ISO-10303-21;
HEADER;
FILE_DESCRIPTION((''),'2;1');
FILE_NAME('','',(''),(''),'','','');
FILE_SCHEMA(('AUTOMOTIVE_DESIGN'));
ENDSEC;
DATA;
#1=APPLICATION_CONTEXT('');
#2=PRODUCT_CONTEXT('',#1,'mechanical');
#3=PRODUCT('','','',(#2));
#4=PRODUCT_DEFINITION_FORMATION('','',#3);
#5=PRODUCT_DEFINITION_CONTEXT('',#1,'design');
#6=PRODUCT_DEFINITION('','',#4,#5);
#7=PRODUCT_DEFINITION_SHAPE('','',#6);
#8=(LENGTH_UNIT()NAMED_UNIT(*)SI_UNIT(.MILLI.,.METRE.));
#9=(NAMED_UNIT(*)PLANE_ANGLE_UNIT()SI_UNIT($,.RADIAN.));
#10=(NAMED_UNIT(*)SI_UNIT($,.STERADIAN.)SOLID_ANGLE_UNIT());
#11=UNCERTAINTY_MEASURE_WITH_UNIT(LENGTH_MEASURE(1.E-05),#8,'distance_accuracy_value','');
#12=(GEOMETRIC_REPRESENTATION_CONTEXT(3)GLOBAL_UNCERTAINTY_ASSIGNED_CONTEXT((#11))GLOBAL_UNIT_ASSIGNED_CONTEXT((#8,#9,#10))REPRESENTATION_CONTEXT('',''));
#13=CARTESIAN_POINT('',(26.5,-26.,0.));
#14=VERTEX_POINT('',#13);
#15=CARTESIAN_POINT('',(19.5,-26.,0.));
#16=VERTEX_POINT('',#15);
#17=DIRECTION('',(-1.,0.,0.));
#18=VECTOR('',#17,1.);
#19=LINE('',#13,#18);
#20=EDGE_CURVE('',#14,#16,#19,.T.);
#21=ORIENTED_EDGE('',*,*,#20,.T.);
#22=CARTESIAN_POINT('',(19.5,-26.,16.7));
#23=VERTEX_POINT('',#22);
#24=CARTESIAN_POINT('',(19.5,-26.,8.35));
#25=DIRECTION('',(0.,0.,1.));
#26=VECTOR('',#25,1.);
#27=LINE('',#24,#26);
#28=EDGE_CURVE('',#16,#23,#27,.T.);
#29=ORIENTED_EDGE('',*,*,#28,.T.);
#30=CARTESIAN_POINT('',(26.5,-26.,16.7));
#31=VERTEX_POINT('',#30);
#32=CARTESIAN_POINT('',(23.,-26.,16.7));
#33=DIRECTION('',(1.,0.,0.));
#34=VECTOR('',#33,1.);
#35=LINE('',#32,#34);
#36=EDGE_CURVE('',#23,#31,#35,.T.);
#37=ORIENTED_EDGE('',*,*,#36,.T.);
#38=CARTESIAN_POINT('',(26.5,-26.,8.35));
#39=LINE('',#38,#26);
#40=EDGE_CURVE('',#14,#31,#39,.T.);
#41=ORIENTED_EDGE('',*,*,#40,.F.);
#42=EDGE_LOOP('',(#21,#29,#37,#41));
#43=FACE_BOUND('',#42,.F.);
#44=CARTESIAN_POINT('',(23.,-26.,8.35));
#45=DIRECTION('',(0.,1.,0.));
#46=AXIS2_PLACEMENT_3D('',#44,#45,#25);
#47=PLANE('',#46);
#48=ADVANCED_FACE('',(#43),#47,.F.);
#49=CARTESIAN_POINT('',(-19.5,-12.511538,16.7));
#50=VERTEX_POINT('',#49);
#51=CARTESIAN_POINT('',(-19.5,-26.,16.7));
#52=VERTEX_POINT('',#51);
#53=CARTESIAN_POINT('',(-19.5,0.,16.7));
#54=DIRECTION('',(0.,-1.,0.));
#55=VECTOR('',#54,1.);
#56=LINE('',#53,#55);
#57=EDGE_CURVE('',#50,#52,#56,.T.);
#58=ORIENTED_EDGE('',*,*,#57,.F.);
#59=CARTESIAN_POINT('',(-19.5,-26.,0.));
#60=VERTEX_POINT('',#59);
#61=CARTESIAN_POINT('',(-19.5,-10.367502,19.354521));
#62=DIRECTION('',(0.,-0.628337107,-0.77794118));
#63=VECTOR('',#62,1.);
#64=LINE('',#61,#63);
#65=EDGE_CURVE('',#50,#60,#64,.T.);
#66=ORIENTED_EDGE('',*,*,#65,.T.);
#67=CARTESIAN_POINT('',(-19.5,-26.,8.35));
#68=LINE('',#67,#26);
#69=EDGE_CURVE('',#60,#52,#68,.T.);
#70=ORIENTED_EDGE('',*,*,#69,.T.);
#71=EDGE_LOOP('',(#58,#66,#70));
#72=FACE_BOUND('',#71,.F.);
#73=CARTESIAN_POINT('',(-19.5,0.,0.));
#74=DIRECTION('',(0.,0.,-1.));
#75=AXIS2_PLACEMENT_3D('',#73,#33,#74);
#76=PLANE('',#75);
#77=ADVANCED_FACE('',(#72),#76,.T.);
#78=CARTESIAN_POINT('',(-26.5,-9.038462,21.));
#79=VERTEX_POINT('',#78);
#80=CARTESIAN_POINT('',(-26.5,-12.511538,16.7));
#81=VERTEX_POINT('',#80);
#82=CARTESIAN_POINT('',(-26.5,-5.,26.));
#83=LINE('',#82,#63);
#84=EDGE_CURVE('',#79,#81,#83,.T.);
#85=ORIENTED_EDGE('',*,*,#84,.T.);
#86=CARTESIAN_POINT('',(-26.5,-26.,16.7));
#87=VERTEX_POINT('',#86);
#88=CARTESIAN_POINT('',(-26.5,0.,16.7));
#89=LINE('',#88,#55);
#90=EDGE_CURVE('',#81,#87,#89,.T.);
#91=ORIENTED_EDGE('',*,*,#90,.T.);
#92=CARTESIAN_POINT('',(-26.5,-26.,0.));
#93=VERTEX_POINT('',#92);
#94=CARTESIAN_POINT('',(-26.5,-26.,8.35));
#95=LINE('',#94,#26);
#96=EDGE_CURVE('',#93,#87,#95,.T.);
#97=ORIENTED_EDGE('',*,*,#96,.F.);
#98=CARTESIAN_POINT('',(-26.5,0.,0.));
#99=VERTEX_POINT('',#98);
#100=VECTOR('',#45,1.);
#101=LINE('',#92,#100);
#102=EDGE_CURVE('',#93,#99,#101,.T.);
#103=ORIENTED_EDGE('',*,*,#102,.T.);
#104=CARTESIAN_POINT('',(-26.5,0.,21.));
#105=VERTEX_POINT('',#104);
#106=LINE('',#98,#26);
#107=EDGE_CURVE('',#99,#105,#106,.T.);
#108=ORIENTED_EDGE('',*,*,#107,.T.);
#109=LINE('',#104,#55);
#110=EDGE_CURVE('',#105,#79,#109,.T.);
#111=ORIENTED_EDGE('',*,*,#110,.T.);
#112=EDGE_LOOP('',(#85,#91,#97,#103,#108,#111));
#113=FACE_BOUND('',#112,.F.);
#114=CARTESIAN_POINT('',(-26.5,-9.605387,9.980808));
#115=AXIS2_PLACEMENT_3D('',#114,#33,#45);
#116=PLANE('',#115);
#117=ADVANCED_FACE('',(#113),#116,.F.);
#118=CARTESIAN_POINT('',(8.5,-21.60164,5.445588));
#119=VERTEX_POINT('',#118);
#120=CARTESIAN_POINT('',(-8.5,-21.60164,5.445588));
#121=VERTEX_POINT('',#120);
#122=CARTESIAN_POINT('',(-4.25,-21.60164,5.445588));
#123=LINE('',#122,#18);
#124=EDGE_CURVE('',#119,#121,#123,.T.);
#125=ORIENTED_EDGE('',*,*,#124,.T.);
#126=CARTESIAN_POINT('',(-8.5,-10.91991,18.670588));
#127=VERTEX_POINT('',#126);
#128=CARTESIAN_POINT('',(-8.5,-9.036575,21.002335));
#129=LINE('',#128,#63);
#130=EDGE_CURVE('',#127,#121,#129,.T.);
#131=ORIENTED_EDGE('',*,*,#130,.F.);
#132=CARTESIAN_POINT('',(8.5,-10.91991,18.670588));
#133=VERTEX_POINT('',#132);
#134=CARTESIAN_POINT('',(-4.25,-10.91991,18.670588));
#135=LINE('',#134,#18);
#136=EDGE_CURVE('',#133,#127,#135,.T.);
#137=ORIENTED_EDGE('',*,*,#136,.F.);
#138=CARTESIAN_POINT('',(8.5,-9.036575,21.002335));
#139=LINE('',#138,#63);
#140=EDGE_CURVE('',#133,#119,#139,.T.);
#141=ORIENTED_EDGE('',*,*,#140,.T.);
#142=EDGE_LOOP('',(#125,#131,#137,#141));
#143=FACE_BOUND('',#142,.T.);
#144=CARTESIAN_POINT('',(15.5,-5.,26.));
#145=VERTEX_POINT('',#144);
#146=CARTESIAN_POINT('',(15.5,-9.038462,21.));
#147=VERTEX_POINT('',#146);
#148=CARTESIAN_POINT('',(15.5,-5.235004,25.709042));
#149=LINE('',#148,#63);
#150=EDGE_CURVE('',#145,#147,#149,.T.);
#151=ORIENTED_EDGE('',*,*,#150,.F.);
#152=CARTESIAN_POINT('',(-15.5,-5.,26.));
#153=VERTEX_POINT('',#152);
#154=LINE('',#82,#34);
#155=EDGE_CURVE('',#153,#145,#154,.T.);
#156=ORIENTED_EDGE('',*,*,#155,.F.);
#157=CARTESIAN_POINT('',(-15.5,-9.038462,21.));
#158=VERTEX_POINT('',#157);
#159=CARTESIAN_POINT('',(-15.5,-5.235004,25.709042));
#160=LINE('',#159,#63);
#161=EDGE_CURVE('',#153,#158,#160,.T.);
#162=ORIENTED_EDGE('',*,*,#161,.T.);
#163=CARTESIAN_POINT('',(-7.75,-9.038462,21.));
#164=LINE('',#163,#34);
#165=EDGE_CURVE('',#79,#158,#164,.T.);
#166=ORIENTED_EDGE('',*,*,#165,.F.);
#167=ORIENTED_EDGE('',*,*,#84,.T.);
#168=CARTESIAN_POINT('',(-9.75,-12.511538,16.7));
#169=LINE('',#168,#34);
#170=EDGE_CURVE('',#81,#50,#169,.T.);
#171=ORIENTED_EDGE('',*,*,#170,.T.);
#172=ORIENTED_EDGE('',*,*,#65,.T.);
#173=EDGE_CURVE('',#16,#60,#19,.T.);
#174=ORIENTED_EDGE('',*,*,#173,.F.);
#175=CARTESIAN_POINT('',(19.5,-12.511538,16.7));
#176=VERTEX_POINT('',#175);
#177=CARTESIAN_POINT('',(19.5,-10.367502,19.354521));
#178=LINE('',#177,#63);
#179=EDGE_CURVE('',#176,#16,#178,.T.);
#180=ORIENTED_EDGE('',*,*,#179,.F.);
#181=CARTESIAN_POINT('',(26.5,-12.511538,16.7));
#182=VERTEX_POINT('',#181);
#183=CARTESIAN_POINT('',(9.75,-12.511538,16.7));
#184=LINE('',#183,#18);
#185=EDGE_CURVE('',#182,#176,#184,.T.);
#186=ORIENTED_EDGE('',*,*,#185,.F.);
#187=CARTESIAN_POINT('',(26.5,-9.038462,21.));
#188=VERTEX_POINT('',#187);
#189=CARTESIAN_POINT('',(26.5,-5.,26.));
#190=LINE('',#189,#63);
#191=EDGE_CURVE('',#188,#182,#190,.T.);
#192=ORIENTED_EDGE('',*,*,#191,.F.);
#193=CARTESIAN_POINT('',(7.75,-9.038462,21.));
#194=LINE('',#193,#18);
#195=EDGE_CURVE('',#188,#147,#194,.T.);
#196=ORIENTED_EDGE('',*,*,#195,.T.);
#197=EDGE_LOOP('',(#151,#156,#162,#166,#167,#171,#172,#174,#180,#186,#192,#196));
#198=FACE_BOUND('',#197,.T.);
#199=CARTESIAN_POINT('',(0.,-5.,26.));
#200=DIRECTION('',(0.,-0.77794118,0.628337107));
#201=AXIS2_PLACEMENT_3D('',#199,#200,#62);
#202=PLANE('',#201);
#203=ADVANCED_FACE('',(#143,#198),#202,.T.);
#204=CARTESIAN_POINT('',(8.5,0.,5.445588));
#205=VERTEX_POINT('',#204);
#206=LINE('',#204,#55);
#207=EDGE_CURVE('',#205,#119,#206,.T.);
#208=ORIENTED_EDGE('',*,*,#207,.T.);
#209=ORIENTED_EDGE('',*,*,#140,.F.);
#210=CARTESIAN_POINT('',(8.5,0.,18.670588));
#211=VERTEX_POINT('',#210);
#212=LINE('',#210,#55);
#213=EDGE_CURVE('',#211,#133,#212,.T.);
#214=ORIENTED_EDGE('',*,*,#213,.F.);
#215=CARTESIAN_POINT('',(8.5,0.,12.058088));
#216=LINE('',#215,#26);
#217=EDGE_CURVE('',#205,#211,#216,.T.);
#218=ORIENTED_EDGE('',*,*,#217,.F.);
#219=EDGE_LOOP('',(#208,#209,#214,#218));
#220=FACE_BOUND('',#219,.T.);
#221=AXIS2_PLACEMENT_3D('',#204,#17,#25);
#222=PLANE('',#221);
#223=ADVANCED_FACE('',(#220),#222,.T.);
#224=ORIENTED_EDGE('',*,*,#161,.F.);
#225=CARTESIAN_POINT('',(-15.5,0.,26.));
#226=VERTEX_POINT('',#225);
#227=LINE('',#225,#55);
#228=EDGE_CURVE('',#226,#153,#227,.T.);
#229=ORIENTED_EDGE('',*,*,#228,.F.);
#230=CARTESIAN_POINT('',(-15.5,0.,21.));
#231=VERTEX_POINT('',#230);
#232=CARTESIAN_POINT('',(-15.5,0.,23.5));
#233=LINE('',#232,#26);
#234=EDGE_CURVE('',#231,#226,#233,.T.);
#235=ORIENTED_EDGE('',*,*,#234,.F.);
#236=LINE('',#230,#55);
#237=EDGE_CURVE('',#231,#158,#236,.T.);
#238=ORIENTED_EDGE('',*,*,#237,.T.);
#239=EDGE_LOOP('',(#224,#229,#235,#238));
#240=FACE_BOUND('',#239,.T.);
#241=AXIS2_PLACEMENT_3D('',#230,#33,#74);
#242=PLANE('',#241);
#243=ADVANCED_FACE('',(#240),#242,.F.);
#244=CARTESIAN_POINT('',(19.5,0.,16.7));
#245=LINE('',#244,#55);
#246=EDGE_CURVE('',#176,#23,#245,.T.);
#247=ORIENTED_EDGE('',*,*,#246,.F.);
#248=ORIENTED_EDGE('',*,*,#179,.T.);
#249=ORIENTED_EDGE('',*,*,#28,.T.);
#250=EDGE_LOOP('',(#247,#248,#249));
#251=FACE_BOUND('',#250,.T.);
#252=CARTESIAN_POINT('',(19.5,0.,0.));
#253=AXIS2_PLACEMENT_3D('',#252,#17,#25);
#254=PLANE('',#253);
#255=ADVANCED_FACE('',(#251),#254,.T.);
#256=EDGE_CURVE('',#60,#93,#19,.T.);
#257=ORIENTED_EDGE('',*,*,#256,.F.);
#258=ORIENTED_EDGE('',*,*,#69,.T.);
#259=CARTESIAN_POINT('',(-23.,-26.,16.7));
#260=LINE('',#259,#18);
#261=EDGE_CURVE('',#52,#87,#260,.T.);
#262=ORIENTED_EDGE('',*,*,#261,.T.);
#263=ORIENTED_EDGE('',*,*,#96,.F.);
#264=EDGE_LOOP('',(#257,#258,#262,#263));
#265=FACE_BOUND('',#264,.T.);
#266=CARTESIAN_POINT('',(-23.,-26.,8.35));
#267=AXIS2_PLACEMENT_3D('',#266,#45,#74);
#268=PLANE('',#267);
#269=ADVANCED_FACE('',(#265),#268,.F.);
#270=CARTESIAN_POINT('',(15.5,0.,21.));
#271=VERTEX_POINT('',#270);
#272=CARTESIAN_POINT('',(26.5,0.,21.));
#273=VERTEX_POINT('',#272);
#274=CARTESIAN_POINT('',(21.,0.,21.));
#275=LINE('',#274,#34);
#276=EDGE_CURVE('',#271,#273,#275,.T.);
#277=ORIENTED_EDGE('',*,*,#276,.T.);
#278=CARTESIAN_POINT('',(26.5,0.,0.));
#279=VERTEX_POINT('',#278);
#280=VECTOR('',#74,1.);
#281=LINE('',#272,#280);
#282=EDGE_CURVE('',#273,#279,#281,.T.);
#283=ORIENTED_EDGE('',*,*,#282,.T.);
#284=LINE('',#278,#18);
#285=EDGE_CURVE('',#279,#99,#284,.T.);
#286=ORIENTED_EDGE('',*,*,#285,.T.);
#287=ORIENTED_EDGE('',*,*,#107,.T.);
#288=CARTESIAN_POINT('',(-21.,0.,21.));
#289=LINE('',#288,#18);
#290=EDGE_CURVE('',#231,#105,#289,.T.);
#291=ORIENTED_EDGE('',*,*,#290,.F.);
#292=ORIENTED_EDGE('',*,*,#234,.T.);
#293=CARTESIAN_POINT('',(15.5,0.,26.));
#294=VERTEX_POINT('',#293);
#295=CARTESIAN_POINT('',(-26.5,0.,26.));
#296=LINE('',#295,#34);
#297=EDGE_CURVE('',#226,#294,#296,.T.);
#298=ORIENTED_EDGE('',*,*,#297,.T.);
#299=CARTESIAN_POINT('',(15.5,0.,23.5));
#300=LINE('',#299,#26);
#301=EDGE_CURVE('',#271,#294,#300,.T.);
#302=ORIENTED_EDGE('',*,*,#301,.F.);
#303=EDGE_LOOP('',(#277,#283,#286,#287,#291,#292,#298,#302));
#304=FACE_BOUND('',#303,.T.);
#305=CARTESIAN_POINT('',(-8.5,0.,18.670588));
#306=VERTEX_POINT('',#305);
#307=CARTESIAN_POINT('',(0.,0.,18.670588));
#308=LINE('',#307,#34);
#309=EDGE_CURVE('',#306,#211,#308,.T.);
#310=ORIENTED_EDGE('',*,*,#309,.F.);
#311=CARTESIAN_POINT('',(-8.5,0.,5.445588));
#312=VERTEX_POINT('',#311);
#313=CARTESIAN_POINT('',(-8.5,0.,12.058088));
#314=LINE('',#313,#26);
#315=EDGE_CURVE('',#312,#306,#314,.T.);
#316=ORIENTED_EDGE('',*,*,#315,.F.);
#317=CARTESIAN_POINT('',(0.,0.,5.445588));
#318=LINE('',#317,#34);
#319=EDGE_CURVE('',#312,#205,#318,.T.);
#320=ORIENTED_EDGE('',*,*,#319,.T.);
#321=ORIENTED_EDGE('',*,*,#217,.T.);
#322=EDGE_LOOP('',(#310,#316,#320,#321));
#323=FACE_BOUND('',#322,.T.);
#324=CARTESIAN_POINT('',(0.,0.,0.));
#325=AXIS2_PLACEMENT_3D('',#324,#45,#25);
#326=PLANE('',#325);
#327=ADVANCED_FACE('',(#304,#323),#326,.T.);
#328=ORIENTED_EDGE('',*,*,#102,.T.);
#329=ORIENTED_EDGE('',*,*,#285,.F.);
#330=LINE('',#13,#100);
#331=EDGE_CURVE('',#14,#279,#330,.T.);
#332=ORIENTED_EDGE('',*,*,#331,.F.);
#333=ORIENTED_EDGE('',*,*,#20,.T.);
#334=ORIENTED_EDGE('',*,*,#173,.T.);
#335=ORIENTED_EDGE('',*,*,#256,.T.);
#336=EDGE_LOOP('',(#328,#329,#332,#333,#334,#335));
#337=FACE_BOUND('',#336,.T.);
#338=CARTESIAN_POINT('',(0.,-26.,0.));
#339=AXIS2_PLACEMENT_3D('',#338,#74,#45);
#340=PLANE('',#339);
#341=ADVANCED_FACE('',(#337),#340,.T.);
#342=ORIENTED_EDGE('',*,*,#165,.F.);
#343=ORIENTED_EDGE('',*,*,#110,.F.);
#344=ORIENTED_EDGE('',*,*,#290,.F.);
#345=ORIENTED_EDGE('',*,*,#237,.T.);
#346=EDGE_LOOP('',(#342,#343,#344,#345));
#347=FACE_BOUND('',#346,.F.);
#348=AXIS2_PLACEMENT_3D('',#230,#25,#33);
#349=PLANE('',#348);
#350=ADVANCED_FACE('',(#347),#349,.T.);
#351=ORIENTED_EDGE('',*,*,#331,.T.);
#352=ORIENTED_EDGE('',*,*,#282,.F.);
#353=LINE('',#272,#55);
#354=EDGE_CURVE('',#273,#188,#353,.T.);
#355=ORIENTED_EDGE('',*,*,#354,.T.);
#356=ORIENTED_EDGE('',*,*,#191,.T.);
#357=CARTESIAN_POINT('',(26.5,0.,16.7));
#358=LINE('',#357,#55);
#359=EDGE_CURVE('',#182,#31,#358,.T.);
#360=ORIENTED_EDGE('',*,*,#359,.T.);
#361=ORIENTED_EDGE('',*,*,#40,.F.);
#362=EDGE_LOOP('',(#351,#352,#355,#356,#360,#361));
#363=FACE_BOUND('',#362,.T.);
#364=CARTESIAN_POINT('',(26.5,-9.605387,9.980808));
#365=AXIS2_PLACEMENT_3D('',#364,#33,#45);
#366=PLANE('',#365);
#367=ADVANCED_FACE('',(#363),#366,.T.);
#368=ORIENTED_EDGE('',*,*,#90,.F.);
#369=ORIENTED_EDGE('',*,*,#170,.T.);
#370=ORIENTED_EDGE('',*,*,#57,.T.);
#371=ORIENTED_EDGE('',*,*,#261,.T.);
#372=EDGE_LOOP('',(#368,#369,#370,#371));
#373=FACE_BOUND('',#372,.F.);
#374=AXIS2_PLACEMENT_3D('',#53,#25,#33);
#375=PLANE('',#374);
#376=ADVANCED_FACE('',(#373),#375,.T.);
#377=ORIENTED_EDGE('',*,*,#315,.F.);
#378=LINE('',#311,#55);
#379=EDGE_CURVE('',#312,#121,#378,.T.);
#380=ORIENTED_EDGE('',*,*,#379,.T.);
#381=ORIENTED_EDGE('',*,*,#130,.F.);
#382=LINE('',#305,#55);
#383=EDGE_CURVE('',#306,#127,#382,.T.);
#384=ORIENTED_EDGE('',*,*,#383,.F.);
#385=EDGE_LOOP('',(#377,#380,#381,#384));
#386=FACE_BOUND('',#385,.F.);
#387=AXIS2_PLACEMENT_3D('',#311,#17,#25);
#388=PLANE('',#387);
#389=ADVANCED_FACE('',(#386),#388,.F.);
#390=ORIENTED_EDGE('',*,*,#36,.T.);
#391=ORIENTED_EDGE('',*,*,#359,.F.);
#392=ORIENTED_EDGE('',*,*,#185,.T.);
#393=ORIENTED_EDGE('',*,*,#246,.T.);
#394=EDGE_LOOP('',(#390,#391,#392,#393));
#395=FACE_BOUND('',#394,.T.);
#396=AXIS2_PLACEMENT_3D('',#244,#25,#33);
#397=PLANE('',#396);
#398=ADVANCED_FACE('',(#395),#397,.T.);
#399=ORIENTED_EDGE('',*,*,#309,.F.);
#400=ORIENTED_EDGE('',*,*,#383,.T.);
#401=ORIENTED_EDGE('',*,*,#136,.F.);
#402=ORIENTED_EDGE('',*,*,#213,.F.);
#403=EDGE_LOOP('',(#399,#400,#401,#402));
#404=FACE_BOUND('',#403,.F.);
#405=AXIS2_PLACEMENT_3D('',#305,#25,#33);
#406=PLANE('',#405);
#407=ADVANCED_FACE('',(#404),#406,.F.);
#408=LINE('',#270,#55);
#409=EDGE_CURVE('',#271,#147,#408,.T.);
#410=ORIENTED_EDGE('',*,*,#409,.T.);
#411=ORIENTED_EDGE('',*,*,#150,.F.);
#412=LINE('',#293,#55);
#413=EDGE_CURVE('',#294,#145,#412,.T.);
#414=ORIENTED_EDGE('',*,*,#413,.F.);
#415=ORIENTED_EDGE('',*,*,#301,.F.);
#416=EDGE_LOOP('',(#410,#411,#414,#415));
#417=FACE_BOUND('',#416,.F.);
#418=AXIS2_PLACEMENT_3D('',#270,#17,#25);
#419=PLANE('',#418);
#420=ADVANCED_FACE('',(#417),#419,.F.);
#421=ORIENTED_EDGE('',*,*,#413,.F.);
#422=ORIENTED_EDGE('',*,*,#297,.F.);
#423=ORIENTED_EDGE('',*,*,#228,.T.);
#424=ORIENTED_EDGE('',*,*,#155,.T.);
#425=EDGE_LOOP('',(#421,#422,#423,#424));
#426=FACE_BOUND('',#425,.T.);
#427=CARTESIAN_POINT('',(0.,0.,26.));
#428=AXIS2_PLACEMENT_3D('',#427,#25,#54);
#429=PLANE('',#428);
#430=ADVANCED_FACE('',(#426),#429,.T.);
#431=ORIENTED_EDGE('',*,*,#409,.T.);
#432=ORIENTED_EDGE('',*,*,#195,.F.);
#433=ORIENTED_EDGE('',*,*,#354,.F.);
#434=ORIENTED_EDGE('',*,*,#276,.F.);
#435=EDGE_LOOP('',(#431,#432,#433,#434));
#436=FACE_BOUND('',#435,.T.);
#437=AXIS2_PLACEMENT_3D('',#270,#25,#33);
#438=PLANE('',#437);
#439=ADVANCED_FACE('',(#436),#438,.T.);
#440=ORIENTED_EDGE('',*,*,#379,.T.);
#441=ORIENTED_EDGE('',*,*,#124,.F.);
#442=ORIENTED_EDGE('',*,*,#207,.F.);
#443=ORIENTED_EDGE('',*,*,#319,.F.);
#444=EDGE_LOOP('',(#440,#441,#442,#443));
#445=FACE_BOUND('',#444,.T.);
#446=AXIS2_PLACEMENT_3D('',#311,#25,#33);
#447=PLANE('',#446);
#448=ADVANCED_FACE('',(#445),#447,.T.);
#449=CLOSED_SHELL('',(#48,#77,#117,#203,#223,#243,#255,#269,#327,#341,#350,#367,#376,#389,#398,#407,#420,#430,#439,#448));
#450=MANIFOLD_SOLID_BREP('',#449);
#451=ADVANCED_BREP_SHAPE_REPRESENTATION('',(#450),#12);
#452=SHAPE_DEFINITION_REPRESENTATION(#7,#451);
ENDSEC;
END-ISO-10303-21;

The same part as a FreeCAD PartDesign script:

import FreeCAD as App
import Part
import Sketcher


def add_polygon(sketch, points):
    """Adds a closed chain of lines whose ends are joined by coincident constraints."""
    first, n = sketch.GeometryCount, len(points)
    for a, b in zip(points, points[1:] + points[:1]):
        sketch.addGeometry(Part.LineSegment(App.Vector(*a, 0), App.Vector(*b, 0)), False)
    for i in range(n):
        sketch.addConstraint(Sketcher.Constraint("Coincident", first + i, 2, first + (i + 1) % n, 1))

doc = App.newDocument("Part")
body = doc.addObject("PartDesign::Body", "Body")

sketch1 = body.newObject("Sketcher::SketchObject", "Sketch")
sketch1.AttachmentSupport = (doc.getObject("YZ_Plane"), [""])
sketch1.MapMode = "FlatFace"
add_polygon(sketch1, [(0, 0), (0, 26), (-5, 26), (-26, 0)])
sketch1.addConstraint([
    Sketcher.Constraint("Vertical", 0),
    Sketcher.Constraint("Horizontal", 1),
    Sketcher.Constraint("Horizontal", 3),
    Sketcher.Constraint("Coincident", 3, 2, -1, 1),
    Sketcher.Constraint("Equal", 3, 0),
    Sketcher.Constraint("DistanceX", 1, 2, 1, 1, 5.0),
    Sketcher.Constraint("DistanceX", 3, 1, 3, 2, 26.0),
])
pad1 = body.newObject("PartDesign::Pad", "Pad")
pad1.Profile = sketch1
pad1.Length = 53
pad1.Midplane = True

sketch2 = body.newObject("Sketcher::SketchObject", "Sketch001")
sketch2.AttachmentSupport = (doc.getObject("XZ_Plane"), [""])
sketch2.MapMode = "FlatFace"
add_polygon(sketch2, [(26, 21), (16, 21), (16, 26), (26, 26)])
sketch2.addConstraint([
    Sketcher.Constraint("Horizontal", 0),
    Sketcher.Constraint("Vertical", 1),
    Sketcher.Constraint("Horizontal", 2),
    Sketcher.Constraint("Vertical", 3),
    Sketcher.Constraint("DistanceX", 0, 2, 0, 1, 11.0),
    Sketcher.Constraint("DistanceY", 1, 1, 1, 2, 5.0),
    Sketcher.Constraint("DistanceY", -1, 1, 0, 2, 21.0),
    Sketcher.Constraint("DistanceX", -1, 1, 0, 2, 15.5),
])
pocket1 = body.newObject("PartDesign::Pocket", "Pocket")
pocket1.Profile = sketch2
pocket1.Type = "ThroughAll"
pocket1.Reversed = True
doc.recompute()

mirrored = body.newObject("PartDesign::Mirrored", "Mirrored")
mirrored.Originals = [pocket1]
mirrored.MirrorPlane = (doc.getObject("YZ_Plane"), [""])
body.Tip = mirrored

sketch3 = body.newObject("Sketcher::SketchObject", "Sketch002")
sketch3.AttachmentSupport = (doc.getObject("XZ_Plane"), [""])
sketch3.MapMode = "FlatFace"
add_polygon(sketch3, [(26, 0), (20, 0), (20, 17), (26, 17)])
sketch3.addConstraint([
    Sketcher.Constraint("Horizontal", 0),
    Sketcher.Constraint("Vertical", 1),
    Sketcher.Constraint("Horizontal", 2),
    Sketcher.Constraint("Vertical", 3),
    Sketcher.Constraint("PointOnObject", 0, 2, -1),
    Sketcher.Constraint("DistanceX", 0, 2, 0, 1, 7.0),
    Sketcher.Constraint("DistanceY", 1, 1, 1, 2, 16.7),
    Sketcher.Constraint("DistanceX", -1, 1, 0, 2, 19.5),
])
pad2 = body.newObject("PartDesign::Pad", "Pad001")
pad2.Profile = sketch3
pad2.Length = 26
doc.recompute()

mirrored2 = body.newObject("PartDesign::Mirrored", "Mirrored001")
mirrored2.Originals = [pad2]
mirrored2.MirrorPlane = (doc.getObject("YZ_Plane"), [""])
body.Tip = mirrored2

sketch4 = body.newObject("Sketcher::SketchObject", "Sketch003")
sketch4.AttachmentSupport = (doc.getObject("XZ_Plane"), [""])
sketch4.MapMode = "FlatFace"
add_polygon(sketch4, [(8, 5), (-8, 5), (-8, 19), (8, 19)])
sketch4.addConstraint([
    Sketcher.Constraint("Horizontal", 0),
    Sketcher.Constraint("Vertical", 1),
    Sketcher.Constraint("Horizontal", 2),
    Sketcher.Constraint("Vertical", 3),
    Sketcher.Constraint("DistanceX", 0, 2, 0, 1, 17.0),
    Sketcher.Constraint("DistanceX", 0, 2, -1, 1, 8.5),
    Sketcher.Constraint("DistanceY", 1, 1, 1, 2, 13.225),
    Sketcher.Constraint("DistanceY", -1, 1, 0, 2, 5.445588),
])
pocket2 = body.newObject("PartDesign::Pocket", "Pocket001")
pocket2.Profile = sketch4
pocket2.Type = "ThroughAll"
pocket2.Reversed = True

doc.recompute()
